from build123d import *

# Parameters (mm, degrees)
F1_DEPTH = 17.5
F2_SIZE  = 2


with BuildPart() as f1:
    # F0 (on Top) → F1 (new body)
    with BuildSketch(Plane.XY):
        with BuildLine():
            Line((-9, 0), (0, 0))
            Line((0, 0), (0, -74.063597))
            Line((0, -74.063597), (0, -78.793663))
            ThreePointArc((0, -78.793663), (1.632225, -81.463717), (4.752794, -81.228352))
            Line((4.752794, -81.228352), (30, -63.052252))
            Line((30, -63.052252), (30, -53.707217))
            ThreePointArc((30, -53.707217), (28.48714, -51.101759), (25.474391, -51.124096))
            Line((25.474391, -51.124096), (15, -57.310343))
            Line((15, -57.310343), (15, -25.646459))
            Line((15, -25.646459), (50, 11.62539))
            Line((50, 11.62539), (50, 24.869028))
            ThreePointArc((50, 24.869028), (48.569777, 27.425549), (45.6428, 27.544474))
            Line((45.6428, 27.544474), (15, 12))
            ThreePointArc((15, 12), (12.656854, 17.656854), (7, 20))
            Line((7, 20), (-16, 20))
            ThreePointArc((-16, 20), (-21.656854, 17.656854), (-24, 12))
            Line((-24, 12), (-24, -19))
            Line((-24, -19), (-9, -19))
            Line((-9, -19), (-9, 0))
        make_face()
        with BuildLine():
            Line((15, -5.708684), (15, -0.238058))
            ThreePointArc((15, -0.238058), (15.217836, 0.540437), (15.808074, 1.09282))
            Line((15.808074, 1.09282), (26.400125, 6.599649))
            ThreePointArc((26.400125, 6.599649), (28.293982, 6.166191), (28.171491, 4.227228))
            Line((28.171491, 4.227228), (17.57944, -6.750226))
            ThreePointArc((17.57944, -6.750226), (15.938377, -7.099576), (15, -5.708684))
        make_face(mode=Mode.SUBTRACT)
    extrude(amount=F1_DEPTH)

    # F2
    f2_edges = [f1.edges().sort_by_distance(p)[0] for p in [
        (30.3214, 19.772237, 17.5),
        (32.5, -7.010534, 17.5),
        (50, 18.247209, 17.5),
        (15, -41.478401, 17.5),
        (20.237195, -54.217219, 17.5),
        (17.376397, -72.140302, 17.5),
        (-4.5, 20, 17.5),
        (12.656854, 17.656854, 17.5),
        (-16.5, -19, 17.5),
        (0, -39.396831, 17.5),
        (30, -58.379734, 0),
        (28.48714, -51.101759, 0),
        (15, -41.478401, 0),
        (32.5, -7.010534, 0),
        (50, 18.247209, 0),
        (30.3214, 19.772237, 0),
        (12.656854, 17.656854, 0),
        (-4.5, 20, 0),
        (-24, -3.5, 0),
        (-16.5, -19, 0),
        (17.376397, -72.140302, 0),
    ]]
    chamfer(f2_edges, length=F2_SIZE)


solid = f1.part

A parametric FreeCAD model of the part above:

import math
import FreeCAD as App
import Part
import Sketcher

V = App.Vector
Q = App.Units.Quantity


def edges_at(feature, points):
    """Names of the edges that pass closest to the given points."""
    edges = feature.Shape.Edges
    near = lambda p: min(range(len(edges)), key=lambda i: edges[i].distToShape(Part.Vertex(*p))[0])
    return sorted({f"Edge{near(p) + 1}" for p in points})

doc = App.newDocument("Part")
params = doc.addObject("Spreadsheet::Sheet", "Params")
for row, (alias, value) in enumerate([
    ("sketch1_radius", "3 mm"),
    ("sketch1_radius2", "8.000001 mm"),
    ("sketch1_radius3", "1.5 mm"),
    ("sketch1_width", "9 mm"),
    ("sketch1_width2", "23 mm"),
    ("pad1_length", "17.5 mm"),
    ("chamfer_size", "2 mm"),
], start=1):
    params.set(f"A{row}", alias)
    params.set(f"B{row}", "=" + value)
    params.setAlias(f"B{row}", alias)

body = doc.addObject("PartDesign::Body", "Body")

# Sketch on XY plane
sketch1 = doc.addObject("Sketcher::SketchObject", "Sketch")
body.addObject(sketch1)
sketch1.AttachmentSupport = (doc.XY_Plane, [""])
sketch1.MapMode = "FlatFace"
sketch1.addGeometry([
    Part.LineSegment(V(-9, 0, 0), V(0, 0, 0)),  # 0
    Part.LineSegment(V(0, 0, 0), V(0, -78.8, 0)),  # 1
    Part.ArcOfCircle(Part.Circle(V(3, -78.8, 0), V(0, 0, 1), 3), math.radians(-180), math.radians(-54)),  # 2
    Part.LineSegment(V(4.8, -81.2, 0), V(30, -63.1, 0)),  # 3
    Part.LineSegment(V(30, -63.1, 0), V(30, -53.7, 0)),  # 4
    Part.ArcOfCircle(Part.Circle(V(27, -53.7, 0), V(0, 0, 1), 3), math.radians(0), math.radians(121)),  # 5
    Part.LineSegment(V(25.5, -51.1, 0), V(15, -57.3, 0)),  # 6
    Part.LineSegment(V(15, -57.3, 0), V(15, -25.6, 0)),  # 7
    Part.LineSegment(V(15, -25.6, 0), V(50, 11.6, 0)),  # 8
    Part.LineSegment(V(50, 11.6, 0), V(50, 24.9, 0)),  # 9
    Part.ArcOfCircle(Part.Circle(V(47, 24.9, 0), V(0, 0, 1), 3), math.radians(0), math.radians(117)),  # 10
    Part.LineSegment(V(45.6, 27.5, 0), V(15, 12, 0)),  # 11
    Part.ArcOfCircle(Part.Circle(V(7, 12, 0), V(0, 0, 1), 8), math.radians(0), math.radians(90)),  # 12
    Part.LineSegment(V(7, 20, 0), V(-16, 20, 0)),  # 13
    Part.ArcOfCircle(Part.Circle(V(-16, 12, 0), V(0, 0, 1), 8), math.radians(90), math.radians(180)),  # 14
    Part.LineSegment(V(-24, 12, 0), V(-24, -19, 0)),  # 15
    Part.LineSegment(V(-24, -19, 0), V(-9, -19, 0)),  # 16
    Part.LineSegment(V(-9, -19, 0), V(-9, 0, 0)),  # 17
    Part.ArcOfCircle(Part.Circle(V(16.5, -5.7, 0), V(0, 0, 1), 1.5), math.radians(180), math.radians(316)),  # 18
    Part.LineSegment(V(15, -5.7, 0), V(15, -0.2, 0)),  # 19
    Part.ArcOfCircle(Part.Circle(V(16.5, -0.2, 0), V(0, 0, 1), 1.5), math.radians(117), math.radians(180)),  # 20
    Part.LineSegment(V(15.8, 1.1, 0), V(26.4, 6.6, 0)),  # 21
    Part.ArcOfCircle(Part.Circle(V(27.1, 5.3, 0), V(0, 0, 1), 1.5), math.radians(-44), math.radians(117)),  # 22
    Part.LineSegment(V(28.2, 4.2, 0), V(17.6, -6.8, 0)),  # 23
], False)
sketch1.addConstraint([
    Sketcher.Constraint("Coincident", 0, 2, 1, 1),
    Sketcher.Constraint("Tangent", 1, 2, 2, 1),
    Sketcher.Constraint("Tangent", 2, 2, 3, 1),
    Sketcher.Constraint("Coincident", 3, 2, 4, 1),
    Sketcher.Constraint("Tangent", 4, 2, 5, 1),
    Sketcher.Constraint("Tangent", 5, 2, 6, 1),
    Sketcher.Constraint("Coincident", 6, 2, 7, 1),
    Sketcher.Constraint("Coincident", 7, 2, 8, 1),
    Sketcher.Constraint("Coincident", 8, 2, 9, 1),
    Sketcher.Constraint("Tangent", 9, 2, 10, 1),
    Sketcher.Constraint("Tangent", 10, 2, 11, 1),
    Sketcher.Constraint("Coincident", 11, 2, 12, 1),
    Sketcher.Constraint("Tangent", 12, 2, 13, 1),
    Sketcher.Constraint("Tangent", 13, 2, 14, 1),
    Sketcher.Constraint("Tangent", 14, 2, 15, 1),
    Sketcher.Constraint("Coincident", 15, 2, 16, 1),
    Sketcher.Constraint("Coincident", 16, 2, 17, 1),
    Sketcher.Constraint("Coincident", 17, 2, 0, 1),
    Sketcher.Constraint("Tangent", 18, 1, 19, 1),
    Sketcher.Constraint("Tangent", 19, 2, 20, 2),
    Sketcher.Constraint("Tangent", 20, 1, 21, 1),
    Sketcher.Constraint("Tangent", 21, 2, 22, 2),
    Sketcher.Constraint("Tangent", 22, 1, 23, 1),
    Sketcher.Constraint("Tangent", 23, 2, 18, 2),
    Sketcher.Constraint("Horizontal", 0),
    Sketcher.Constraint("Vertical", 1),
    Sketcher.Constraint("Vertical", 4),
    Sketcher.Constraint("Vertical", 7),
    Sketcher.Constraint("Vertical", 9),
    Sketcher.Constraint("Horizontal", 13),
    Sketcher.Constraint("Vertical", 15),
    Sketcher.Constraint("Horizontal", 16),
    Sketcher.Constraint("Vertical", 17),
    Sketcher.Constraint("Vertical", 19),
    Sketcher.Constraint("Coincident", 0, 2, -1, 1),
    Sketcher.Constraint("Equal", 2, 5),
    Sketcher.Constraint("Equal", 5, 10),
    Sketcher.Constraint("Equal", 12, 14),
    Sketcher.Constraint("Equal", 18, 20),
    Sketcher.Constraint("Equal", 20, 22),
    Sketcher.Constraint("Horizontal", 14, 3, 11, 2),
    Sketcher.Constraint("Vertical", 7, 2, 11, 2),
    Sketcher.Constraint("Vertical", 11, 2, 18, 1),
    Sketcher.Constraint("Radius", 2, 3.0),
    Sketcher.Constraint("Radius", 12, 8.000001),
    Sketcher.Constraint("Radius", 18, 1.5),
    Sketcher.Constraint("DistanceX", 0, 1, 0, 2, 9.0),
    Sketcher.Constraint("DistanceX", 13, 2, 13, 1, 23.0),
    Sketcher.Constraint("DistanceX", 16, 1, 16, 2, 15.0),
    Sketcher.Constraint("DistanceY", 15, 2, 15, 1, 31.0),
    Sketcher.Constraint("DistanceY", 17, 1, 17, 2, 19.0),
    Sketcher.Constraint("DistanceX", -1, 1, 5, 3, 27.0),
    Sketcher.Constraint("DistanceX", -1, 1, 10, 3, 46.999999),
    Sketcher.Constraint("Angle", 21, Q("27.470014 deg")),
    Sketcher.Constraint("DistanceY", 9, 1, 9, 2, 13.243638),
    Sketcher.Constraint("DistanceX", -1, 1, 10, 2, 45.6428),
    Sketcher.Constraint("DistanceY", 2, 2, 3, 2, 18.1761),
    Sketcher.Constraint("DistanceY", 7, 2, 20, 3, 25.4084),
    Sketcher.Constraint("DistanceY", 1, 2, 1, 1, 78.793663),
    Sketcher.Constraint("DistanceY", 4, 1, 4, 2, 9.345035),
    Sketcher.Constraint("DistanceY", 7, 1, 7, 2, 31.663884),
    Sketcher.Constraint("DistanceY", 19, 1, 19, 2, 5.470626),
    Sketcher.Constraint("DistanceY", 20, 3, -1, 1, 0.238059),
    Sketcher.Constraint("DistanceX", -1, 1, 22, 3, 27.092052),
])
sketch1.setExpression("Constraints[43]", "Params.sketch1_radius")
sketch1.setExpression("Constraints[44]", "Params.sketch1_radius2")
sketch1.setExpression("Constraints[45]", "Params.sketch1_radius3")
sketch1.setExpression("Constraints[46]", "Params.sketch1_width")
sketch1.setExpression("Constraints[47]", "Params.sketch1_width2")
pad1 = doc.addObject("PartDesign::Pad", "Pad")
body.addObject(pad1)
pad1.Profile = sketch1
pad1.setExpression("Length", "Params.pad1_length")
doc.recompute()

chamfer = doc.addObject("PartDesign::Chamfer", "Chamfer")
body.addObject(chamfer)
chamfer.Base = (pad1, edges_at(pad1, [
    (30.321, 19.772, 17.5),
    (32.5, -7.011, 17.5),
    (50, 18.247, 17.5),
    (15, -41.478, 17.5),
    (20.237, -54.217, 17.5),
    (17.376, -72.14, 17.5),
    (-4.5, 20, 17.5),
    (12.657, 17.657, 17.5),
    (-16.5, -19, 17.5),
    (0, -39.397, 17.5),
    (30, -58.38, 0),
    (28.487, -51.102, 0),
    (15, -41.478, 0),
    (32.5, -7.011, 0),
    (50, 18.247, 0),
    (30.321, 19.772, 0),
    (12.657, 17.657, 0),
    (-4.5, 20, 0),
    (-24, -3.5, 0),
    (-16.5, -19, 0),
    (17.376, -72.14, 0),
]))
chamfer.setExpression("Size", "Params.chamfer_size")

doc.recompute()
